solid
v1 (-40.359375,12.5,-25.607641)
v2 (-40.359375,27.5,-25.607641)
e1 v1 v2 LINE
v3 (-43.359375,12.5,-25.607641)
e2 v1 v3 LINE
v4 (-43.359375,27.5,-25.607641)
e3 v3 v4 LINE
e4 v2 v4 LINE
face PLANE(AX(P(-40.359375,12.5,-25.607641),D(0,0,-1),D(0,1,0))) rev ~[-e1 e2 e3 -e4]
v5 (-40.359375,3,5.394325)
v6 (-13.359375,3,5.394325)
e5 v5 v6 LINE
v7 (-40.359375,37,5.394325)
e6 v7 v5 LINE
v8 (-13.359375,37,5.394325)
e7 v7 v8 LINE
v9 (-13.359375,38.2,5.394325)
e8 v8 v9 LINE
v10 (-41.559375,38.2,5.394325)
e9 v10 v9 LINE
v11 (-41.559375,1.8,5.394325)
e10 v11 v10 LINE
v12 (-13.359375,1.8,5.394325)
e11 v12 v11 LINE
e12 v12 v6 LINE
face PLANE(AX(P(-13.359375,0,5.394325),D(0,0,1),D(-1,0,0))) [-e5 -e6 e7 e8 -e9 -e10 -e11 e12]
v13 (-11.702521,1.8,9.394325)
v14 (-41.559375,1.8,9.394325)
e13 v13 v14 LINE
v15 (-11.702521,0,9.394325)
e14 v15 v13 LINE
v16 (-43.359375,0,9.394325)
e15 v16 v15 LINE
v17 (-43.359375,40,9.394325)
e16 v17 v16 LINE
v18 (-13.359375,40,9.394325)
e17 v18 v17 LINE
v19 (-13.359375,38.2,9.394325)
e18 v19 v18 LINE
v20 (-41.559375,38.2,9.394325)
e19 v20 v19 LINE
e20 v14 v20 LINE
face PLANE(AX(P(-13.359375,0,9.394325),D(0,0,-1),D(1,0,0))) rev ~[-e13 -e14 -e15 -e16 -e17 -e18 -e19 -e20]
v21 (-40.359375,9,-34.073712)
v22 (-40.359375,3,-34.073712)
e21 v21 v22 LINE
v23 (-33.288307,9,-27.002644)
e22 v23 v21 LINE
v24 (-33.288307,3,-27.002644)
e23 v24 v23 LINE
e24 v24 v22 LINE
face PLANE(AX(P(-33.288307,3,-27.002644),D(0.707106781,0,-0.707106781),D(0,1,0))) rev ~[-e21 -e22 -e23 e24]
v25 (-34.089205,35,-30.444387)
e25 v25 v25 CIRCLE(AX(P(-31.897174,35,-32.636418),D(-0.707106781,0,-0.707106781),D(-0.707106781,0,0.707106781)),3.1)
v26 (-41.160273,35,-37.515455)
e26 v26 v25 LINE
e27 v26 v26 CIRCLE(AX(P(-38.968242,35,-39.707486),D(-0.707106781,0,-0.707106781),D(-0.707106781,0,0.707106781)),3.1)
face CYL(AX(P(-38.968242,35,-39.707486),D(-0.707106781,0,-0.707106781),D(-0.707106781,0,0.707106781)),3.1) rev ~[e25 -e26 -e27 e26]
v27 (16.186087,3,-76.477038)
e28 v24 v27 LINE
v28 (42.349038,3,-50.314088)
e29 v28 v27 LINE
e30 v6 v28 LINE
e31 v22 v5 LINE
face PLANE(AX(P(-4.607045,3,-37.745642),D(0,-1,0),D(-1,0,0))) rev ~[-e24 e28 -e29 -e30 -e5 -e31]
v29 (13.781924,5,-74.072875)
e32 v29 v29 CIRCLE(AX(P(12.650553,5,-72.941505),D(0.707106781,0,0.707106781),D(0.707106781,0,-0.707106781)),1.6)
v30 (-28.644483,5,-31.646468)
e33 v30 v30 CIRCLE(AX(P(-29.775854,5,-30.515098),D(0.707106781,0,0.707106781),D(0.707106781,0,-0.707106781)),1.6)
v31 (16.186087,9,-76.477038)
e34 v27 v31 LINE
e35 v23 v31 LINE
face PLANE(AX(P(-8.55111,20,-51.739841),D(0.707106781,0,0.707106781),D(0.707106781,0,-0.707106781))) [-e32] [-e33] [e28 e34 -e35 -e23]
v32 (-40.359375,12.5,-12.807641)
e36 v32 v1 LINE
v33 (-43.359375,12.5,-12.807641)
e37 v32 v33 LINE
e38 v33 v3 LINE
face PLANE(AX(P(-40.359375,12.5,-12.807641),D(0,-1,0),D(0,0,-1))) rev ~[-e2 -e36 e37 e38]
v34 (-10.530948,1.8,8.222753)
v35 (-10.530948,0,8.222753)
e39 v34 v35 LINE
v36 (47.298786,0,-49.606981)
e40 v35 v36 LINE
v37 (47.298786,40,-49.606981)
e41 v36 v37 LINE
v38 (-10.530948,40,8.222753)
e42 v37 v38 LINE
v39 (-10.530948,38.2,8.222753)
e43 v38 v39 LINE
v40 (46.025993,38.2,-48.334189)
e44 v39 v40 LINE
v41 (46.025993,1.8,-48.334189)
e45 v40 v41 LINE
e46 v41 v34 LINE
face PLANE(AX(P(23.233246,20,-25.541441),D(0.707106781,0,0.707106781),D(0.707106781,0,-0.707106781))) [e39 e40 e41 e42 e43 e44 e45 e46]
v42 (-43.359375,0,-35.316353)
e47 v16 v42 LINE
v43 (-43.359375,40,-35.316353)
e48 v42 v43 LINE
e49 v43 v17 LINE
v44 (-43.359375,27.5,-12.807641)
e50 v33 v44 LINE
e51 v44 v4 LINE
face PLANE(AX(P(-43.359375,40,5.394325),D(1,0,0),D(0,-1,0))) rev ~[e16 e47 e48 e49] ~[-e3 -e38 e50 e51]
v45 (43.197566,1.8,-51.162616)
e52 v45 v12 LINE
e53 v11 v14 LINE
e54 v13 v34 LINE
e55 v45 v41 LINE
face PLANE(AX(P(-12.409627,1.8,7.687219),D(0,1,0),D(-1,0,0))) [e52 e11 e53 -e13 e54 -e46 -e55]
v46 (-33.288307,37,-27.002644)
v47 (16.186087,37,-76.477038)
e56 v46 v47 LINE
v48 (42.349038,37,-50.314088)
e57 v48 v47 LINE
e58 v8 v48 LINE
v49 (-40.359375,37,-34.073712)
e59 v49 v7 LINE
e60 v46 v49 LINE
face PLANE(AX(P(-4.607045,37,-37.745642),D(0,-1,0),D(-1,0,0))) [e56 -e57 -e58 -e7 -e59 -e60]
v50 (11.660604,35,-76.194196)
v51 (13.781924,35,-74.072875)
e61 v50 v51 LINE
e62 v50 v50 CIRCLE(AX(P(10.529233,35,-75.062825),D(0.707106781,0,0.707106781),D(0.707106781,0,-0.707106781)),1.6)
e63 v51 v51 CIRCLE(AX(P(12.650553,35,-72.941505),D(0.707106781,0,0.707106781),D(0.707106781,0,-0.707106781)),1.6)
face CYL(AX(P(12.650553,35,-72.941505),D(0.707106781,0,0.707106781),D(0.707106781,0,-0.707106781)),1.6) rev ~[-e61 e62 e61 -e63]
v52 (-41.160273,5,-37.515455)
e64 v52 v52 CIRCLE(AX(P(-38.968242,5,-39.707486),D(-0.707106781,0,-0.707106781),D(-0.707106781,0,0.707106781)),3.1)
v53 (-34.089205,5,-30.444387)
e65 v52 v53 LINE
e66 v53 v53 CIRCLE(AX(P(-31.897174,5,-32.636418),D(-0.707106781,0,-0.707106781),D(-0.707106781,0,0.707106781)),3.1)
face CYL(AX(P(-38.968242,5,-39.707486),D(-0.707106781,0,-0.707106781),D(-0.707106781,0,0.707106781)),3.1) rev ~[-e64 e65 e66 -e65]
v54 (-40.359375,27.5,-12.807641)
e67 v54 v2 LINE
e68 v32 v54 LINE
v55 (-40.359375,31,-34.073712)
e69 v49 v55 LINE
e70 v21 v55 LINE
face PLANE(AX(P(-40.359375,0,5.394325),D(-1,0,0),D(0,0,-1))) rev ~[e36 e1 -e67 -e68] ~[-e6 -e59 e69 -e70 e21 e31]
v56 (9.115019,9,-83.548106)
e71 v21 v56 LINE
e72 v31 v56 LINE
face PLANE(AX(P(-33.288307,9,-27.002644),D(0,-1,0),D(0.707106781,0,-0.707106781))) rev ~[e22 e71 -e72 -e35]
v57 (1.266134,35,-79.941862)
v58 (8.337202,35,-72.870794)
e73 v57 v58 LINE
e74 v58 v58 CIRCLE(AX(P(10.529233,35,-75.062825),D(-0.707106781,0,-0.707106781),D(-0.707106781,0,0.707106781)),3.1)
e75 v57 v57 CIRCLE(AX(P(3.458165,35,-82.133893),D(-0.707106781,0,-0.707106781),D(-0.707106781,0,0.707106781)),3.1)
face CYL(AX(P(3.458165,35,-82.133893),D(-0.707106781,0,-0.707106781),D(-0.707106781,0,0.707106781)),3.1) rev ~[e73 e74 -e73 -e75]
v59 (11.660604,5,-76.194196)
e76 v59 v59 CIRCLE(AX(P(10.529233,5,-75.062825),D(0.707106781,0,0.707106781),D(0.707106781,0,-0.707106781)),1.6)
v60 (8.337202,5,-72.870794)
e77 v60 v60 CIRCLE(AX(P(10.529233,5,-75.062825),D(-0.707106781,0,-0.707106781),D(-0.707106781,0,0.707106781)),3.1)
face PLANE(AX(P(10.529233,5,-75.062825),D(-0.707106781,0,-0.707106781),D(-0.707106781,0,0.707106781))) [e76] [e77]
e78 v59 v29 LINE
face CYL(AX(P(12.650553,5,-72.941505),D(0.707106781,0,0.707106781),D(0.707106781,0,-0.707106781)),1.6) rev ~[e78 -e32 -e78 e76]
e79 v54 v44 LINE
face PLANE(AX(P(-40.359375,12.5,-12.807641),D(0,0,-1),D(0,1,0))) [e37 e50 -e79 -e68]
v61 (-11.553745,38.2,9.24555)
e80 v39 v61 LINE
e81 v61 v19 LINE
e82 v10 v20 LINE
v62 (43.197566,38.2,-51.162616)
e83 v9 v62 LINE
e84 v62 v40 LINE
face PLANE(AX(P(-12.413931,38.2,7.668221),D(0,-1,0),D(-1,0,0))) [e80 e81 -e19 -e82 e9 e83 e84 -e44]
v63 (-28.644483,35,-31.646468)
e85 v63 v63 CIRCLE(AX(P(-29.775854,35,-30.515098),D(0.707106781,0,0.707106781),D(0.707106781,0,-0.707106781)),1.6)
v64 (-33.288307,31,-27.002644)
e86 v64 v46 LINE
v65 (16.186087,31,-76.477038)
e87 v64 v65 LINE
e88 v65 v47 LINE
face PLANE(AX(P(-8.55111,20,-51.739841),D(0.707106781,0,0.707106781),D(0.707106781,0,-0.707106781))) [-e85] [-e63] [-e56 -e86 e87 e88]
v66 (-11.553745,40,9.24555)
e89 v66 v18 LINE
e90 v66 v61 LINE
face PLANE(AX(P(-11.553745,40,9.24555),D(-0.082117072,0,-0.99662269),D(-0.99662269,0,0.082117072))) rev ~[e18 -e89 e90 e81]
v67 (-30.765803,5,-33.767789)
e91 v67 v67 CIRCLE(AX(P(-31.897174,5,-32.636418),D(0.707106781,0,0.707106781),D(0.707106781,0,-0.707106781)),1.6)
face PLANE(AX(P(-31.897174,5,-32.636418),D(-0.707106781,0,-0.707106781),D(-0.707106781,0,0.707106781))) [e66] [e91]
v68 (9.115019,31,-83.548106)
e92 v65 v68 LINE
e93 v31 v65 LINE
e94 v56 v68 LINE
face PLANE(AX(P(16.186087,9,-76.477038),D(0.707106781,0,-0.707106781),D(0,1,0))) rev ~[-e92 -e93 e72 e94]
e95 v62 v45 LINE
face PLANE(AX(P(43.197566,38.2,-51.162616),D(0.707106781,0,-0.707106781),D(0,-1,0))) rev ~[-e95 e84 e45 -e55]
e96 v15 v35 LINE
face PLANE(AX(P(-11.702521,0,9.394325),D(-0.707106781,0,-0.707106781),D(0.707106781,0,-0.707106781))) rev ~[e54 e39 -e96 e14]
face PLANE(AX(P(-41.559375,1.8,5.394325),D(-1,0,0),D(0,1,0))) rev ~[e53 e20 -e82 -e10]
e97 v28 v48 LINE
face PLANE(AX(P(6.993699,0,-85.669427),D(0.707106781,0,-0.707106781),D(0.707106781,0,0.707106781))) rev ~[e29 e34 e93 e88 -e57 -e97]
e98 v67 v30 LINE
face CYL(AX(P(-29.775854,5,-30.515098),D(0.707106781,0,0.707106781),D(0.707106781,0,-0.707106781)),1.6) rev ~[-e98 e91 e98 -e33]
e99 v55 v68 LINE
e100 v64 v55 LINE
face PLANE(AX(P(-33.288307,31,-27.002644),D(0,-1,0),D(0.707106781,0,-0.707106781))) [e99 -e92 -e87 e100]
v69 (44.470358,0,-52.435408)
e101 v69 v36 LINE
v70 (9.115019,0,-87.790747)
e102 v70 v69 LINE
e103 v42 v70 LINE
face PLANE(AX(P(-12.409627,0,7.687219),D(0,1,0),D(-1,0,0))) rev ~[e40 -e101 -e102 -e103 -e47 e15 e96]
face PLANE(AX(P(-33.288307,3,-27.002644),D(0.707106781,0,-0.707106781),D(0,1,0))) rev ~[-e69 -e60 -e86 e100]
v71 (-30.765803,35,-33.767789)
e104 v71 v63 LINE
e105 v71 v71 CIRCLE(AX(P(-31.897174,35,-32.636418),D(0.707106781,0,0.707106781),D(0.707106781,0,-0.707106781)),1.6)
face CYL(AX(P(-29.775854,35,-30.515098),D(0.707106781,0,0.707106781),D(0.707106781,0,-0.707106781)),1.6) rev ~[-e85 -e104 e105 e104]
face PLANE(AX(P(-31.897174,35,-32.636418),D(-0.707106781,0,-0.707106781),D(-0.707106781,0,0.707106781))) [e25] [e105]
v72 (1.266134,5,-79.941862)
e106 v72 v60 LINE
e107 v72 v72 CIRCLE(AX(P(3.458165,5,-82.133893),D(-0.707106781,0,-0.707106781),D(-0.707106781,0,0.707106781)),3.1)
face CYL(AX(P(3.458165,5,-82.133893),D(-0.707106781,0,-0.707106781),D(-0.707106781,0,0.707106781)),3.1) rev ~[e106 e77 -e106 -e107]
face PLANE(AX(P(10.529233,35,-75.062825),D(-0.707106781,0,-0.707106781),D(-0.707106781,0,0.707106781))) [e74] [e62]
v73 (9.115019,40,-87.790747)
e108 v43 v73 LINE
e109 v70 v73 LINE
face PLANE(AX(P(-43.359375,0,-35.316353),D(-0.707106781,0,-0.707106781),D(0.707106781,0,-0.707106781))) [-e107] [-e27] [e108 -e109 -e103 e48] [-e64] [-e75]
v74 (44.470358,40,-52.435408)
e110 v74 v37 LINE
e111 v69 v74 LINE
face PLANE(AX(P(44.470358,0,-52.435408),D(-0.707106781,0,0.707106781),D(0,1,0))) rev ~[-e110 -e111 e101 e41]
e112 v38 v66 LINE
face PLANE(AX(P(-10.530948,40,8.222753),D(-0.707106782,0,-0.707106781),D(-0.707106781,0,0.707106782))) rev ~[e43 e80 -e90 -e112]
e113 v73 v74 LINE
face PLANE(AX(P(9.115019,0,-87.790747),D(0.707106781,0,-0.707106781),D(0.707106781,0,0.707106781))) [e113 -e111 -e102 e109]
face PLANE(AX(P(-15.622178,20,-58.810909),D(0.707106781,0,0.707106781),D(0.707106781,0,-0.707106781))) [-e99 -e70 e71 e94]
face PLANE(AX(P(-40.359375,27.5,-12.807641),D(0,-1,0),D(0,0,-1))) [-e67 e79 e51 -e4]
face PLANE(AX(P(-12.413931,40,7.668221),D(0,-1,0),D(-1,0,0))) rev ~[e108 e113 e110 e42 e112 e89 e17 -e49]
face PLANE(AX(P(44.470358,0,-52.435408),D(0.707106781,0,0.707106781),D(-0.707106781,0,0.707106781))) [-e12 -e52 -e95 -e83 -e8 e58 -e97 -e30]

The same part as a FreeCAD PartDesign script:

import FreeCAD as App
import Part
import Sketcher
from FreeCAD import Vector
Q = App.Units.Quantity


def faces_at(feature, points):
    """Names of the faces that lie closest to the given points."""
    faces = feature.Shape.Faces
    near = lambda p: min(range(len(faces)), key=lambda i: faces[i].distToShape(Part.Vertex(*p))[0])
    return sorted({f"Face{near(p) + 1}" for p in points})


def add_polygon(sketch, points):
    """Adds a closed chain of lines whose ends are joined by coincident constraints."""
    first, n = sketch.GeometryCount, len(points)
    for a, b in zip(points, points[1:] + points[:1]):
        sketch.addGeometry(Part.LineSegment(App.Vector(*a, 0), App.Vector(*b, 0)), False)
    for i in range(n):
        sketch.addConstraint(Sketcher.Constraint("Coincident", first + i, 2, first + (i + 1) % n, 1))

doc = App.newDocument("Part")
body = doc.addObject("PartDesign::Body", "Body")

sketch1 = body.newObject("Sketcher::SketchObject", "Sketch")
sketch1.AttachmentSupport = (doc.getObject("XZ_Plane"), [""])
sketch1.MapMode = "FlatFace"
add_polygon(sketch1, [(-43, -35), (-43, 5), (-13, 5), (44, -52), (9, -88)])
sketch1.addConstraint([
    Sketcher.Constraint("Vertical", 0),
    Sketcher.Constraint("Horizontal", 1),
    Sketcher.Constraint("Perpendicular", 2, 3),
    Sketcher.Constraint("Perpendicular", 3, 4),
    Sketcher.Constraint("DistanceX", 1, 1, 1, 2, Q("30 mm")),
    Sketcher.Constraint("Angle", 2, Q("-45 deg")),
    Sketcher.Constraint("Distance", 3, Q("50 mm")),
    Sketcher.Constraint("Distance", 4, Q("74.21 mm")),
    Sketcher.Constraint("DistanceX", -1, 1, 2, 2, Q("44.470358 mm")),
    Sketcher.Constraint("DistanceY", -1, 1, 0, 2, Q("5.394325 mm")),
])
pad1 = body.newObject("PartDesign::Pad", "Pad")
pad1.Profile = sketch1
pad1.Length = 40
pad1.Reversed = True
doc.recompute()

thickness = body.newObject("PartDesign::Thickness", "Thickness")
thickness.Base = (pad1, faces_at(pad1, [(15.555, 20, -23.521), (-28.359, 20, 5.394)]))
thickness.Value = 3
thickness.Reversed = True
thickness.Join = "Intersection"

sketch2 = body.newObject("Sketcher::SketchObject", "Sketch001")
sketch2.Placement = App.Placement(Vector(-3.982525, 0, -3.982525), App.Rotation(Vector(0.707106781, 0, -0.707106781), Vector(0, 0.999999999, 0), Vector(0.707106781, 0, 0.707106781), "ZXY"))
add_polygon(sketch2, [(-13.3, 38.2), (66.7, 38.2), (66.7, 1.8), (-13.3, 1.8), (-13.3, 0), (68.5, 0), (68.5, 40), (-13.3, 40)])
sketch2.addConstraint([
    Sketcher.Constraint("Horizontal", 0),
    Sketcher.Constraint("Vertical", 1),
    Sketcher.Constraint("Horizontal", 2),
    Sketcher.Constraint("Vertical", 3),
    Sketcher.Constraint("Horizontal", 4),
    Sketcher.Constraint("Vertical", 5),
    Sketcher.Constraint("Horizontal", 6),
    Sketcher.Constraint("Vertical", 7),
    Sketcher.Constraint("PointOnObject", 3, 2, -1),
    Sketcher.Constraint("Vertical", 3, 2, 6, 2),
    Sketcher.Constraint("Equal", 3, 7),
    Sketcher.Constraint("DistanceY", 5, 1, 5, 2, Q("40 mm")),
    Sketcher.Constraint("DistanceY", 1, 2, 1, 1, Q("36.4 mm")),
    Sketcher.Constraint("DistanceX", 1, 2, 4, 2, Q("1.8 mm")),
    Sketcher.Constraint("DistanceX", 0, 1, 0, 2, Q("79.983593 mm")),
    Sketcher.Constraint("DistanceX", 2, 2, -1, 1, Q("13.260869 mm")),
])
pad2 = body.newObject("PartDesign::Pad", "Pad001")
pad2.Profile = sketch2
pad2.Length = 4

sketch3 = body.newObject("Sketcher::SketchObject", "Sketch002")
sketch3.AttachmentSupport = (doc.getObject("XY_Plane"), [""])
sketch3.MapMode = "FlatFace"
sketch3.AttachmentOffset = App.Placement(Vector(0, 0, 5.394325), App.Rotation())
add_polygon(sketch3, [(-13.4, 1.8), (-41.6, 1.8), (-41.6, 38.2), (-13.4, 38.2), (-13.4, 40), (-43.4, 40), (-43.4, 0), (-13.4, 0)])
sketch3.addConstraint([
    Sketcher.Constraint("Horizontal", 0),
    Sketcher.Constraint("Vertical", 1),
    Sketcher.Constraint("Horizontal", 2),
    Sketcher.Constraint("Vertical", 3),
    Sketcher.Constraint("Horizontal", 4),
    Sketcher.Constraint("Vertical", 5),
    Sketcher.Constraint("Horizontal", 6),
    Sketcher.Constraint("Vertical", 7),
    Sketcher.Constraint("PointOnObject", 5, 2, -1),
    Sketcher.Constraint("Vertical", 3, 2, 6, 2),
    Sketcher.Constraint("Equal", 3, 7),
    Sketcher.Constraint("DistanceX", 4, 2, 4, 1, Q("30 mm")),
    Sketcher.Constraint("DistanceY", 5, 2, 5, 1, Q("40 mm")),
    Sketcher.Constraint("DistanceX", 0, 2, 0, 1, Q("28.2 mm")),
    Sketcher.Constraint("DistanceY", 1, 1, 1, 2, Q("36.4 mm")),
    Sketcher.Constraint("DistanceX", 0, 2, -1, 1, Q("41.559375 mm")),
])
pad3 = body.newObject("PartDesign::Pad", "Pad002")
pad3.Profile = sketch3
pad3.Length = 4

sketch4 = body.newObject("Sketcher::SketchObject", "Sketch003")
sketch4.AttachmentSupport = (doc.getObject("XZ_Plane"), [""])
sketch4.MapMode = "FlatFace"
add_polygon(sketch4, [(-11.7, 9.4), (-13.4, 9.4), (-13.4, 5.4), (-10.5, 8.2)])
sketch4.addConstraint([
    Sketcher.Constraint("Horizontal", 0),
    Sketcher.Constraint("Vertical", 1),
    Sketcher.Constraint("Perpendicular", 2, 3),
    Sketcher.Constraint("DistanceY", 1, 2, 1, 1, Q("4 mm")),
    Sketcher.Constraint("Angle", 2, Q("45 deg")),
    Sketcher.Constraint("Distance", 2, Q("4 mm")),
    Sketcher.Constraint("DistanceX", 3, 2, -1, 1, Q("11.702521 mm")),
    Sketcher.Constraint("DistanceY", -1, 1, 0, 2, Q("9.394325 mm")),
])
pad4 = body.newObject("PartDesign::Pad", "Pad003")
pad4.Profile = sketch4
pad4.Length = 1.8
pad4.Reversed = True

sketch5 = body.newObject("Sketcher::SketchObject", "Sketch004")
sketch5.AttachmentSupport = (doc.getObject("XZ_Plane"), [""])
sketch5.MapMode = "FlatFace"
sketch5.AttachmentOffset = App.Placement(Vector(0, 0, -40), App.Rotation())
add_polygon(sketch5, [(-10.5, 8.2), (-13.4, 5.4), (-13.4, 9.4), (-11.6, 9.2)])
sketch5.addConstraint([
    Sketcher.Constraint("Vertical", 1),
    Sketcher.Constraint("Perpendicular", 0, 3),
    Sketcher.Constraint("DistanceY", 1, 1, 1, 2, Q("4 mm")),
    Sketcher.Constraint("Angle", 0, Q("-135 deg")),
    Sketcher.Constraint("Distance", 0, Q("4 mm")),
    Sketcher.Constraint("Distance", 2, Q("1.811749 mm")),
    Sketcher.Constraint("DistanceY", -1, 1, 2, 2, Q("9.24555 mm")),
    Sketcher.Constraint("DistanceX", 0, 2, -1, 1, Q("13.359375 mm")),
])
pad5 = body.newObject("PartDesign::Pad", "Pad004")
pad5.Profile = sketch5
pad5.Length = 1.8

sketch6 = body.newObject("Sketcher::SketchObject", "Sketch005")
sketch6.Placement = App.Placement(Vector(-37.216543, 0, -37.216543), App.Rotation(Vector(0.707106781, 0, -0.707106781), Vector(0, 0.999999999, 0), Vector(0.707106781, 0, 0.707106781), "ZXY"))
sketch6.addGeometry([
    Part.Circle(Vector(60.5, 35, 0), Vector(0, 0, 1), 1.6),
    Part.Circle(Vector(60.5, 5, 0), Vector(0, 0, 1), 1.6),
    Part.Circle(Vector(0.5, 35, 0), Vector(0, 0, 1), 1.6),
    Part.Circle(Vector(0.5, 5, 0), Vector(0, 0, 1), 1.6),
], False)
sketch6.addConstraint([
    Sketcher.Constraint("Equal", 0, 1),
    Sketcher.Constraint("Equal", 1, 2),
    Sketcher.Constraint("Equal", 2, 3),
    Sketcher.Constraint("Horizontal", 0, 3, 2, 3),
    Sketcher.Constraint("Horizontal", 1, 3, 3, 3),
    Sketcher.Constraint("Vertical", 0, 3, 1, 3),
    Sketcher.Constraint("Vertical", 2, 3, 3, 3),
    Sketcher.Constraint("Diameter", 0, Q("3.2 mm")),
    Sketcher.Constraint("DistanceY", -1, 1, 0, 3, Q("35 mm")),
    Sketcher.Constraint("DistanceY", -1, 1, 1, 3, Q("5 mm")),
    Sketcher.Constraint("DistanceX", 2, 3, 0, 3, Q("60 mm")),
    Sketcher.Constraint("DistanceX", -1, 1, 0, 3, Q("60.522724 mm")),
])
pocket1 = body.newObject("PartDesign::Pocket", "Pocket")
pocket1.Profile = sketch6
pocket1.Type = "ThroughAll"

sketch7 = body.newObject("Sketcher::SketchObject", "Sketch006")
sketch7.AttachmentSupport = (doc.getObject("YZ_Plane"), [""])
sketch7.MapMode = "FlatFace"
sketch7.AttachmentOffset = App.Placement(Vector(0, 0, -40.359375), App.Rotation())
add_polygon(sketch7, [(28, -13), (12, -13), (12, -26), (28, -26)])
sketch7.addConstraint([
    Sketcher.Constraint("Horizontal", 0),
    Sketcher.Constraint("Vertical", 1),
    Sketcher.Constraint("Horizontal", 2),
    Sketcher.Constraint("Vertical", 3),
    Sketcher.Constraint("DistanceX", 0, 2, 0, 1, Q("15 mm")),
    Sketcher.Constraint("DistanceY", 1, 2, 1, 1, Q("12.8 mm")),
    Sketcher.Constraint("DistanceX", -1, 1, 0, 2, Q("12.5 mm")),
    Sketcher.Constraint("DistanceY", 0, 2, -1, 1, Q("12.807641 mm")),
])
pocket2 = body.newObject("PartDesign::Pocket", "Pocket001")
pocket2.Profile = sketch7
pocket2.Length = 3

sketch8 = body.newObject("Sketcher::SketchObject", "Sketch007")
sketch8.Placement = App.Placement(Vector(-30.145476, 0, -30.145476), App.Rotation(Vector(0.707106781, 0, -0.707106781), Vector(0, 0.999999999, 0), Vector(0.707106781, 0, 0.707106781), "ZXY"))
add_polygon(sketch8, [(-4.4, 37), (-4.4, 3), (65.5, 3), (65.5, 37)])
sketch8.addGeometry(Part.Circle(Vector(0.5, 5, 0), Vector(0, 0, 1), 1.6), False)
sketch8.addGeometry(Part.Circle(Vector(60.5, 5, 0), Vector(0, 0, 1), 1.6), False)
sketch8.addGeometry(Part.Circle(Vector(0.5, 35, 0), Vector(0, 0, 1), 1.6), False)
sketch8.addGeometry(Part.Circle(Vector(60.5, 35, 0), Vector(0, 0, 1), 1.6), False)
sketch8.addConstraint([
    Sketcher.Constraint("Vertical", 0),
    Sketcher.Constraint("Horizontal", 1),
    Sketcher.Constraint("Vertical", 2),
    Sketcher.Constraint("Horizontal", 3),
    Sketcher.Constraint("Equal", 4, 5),
    Sketcher.Constraint("Equal", 5, 6),
    Sketcher.Constraint("Equal", 6, 7),
    Sketcher.Constraint("Horizontal", 4, 3, 5, 3),
    Sketcher.Constraint("Horizontal", 6, 3, 7, 3),
    Sketcher.Constraint("Vertical", 4, 3, 6, 3),
    Sketcher.Constraint("Vertical", 5, 3, 7, 3),
    Sketcher.Constraint("Diameter", 4, Q("3.2 mm")),
    Sketcher.Constraint("DistanceY", 0, 2, 0, 1, Q("34 mm")),
    Sketcher.Constraint("DistanceY", -1, 1, 4, 3, Q("5 mm")),
    Sketcher.Constraint("DistanceY", -1, 1, 6, 3, Q("35 mm")),
    Sketcher.Constraint("DistanceY", -1, 1, 0, 2, Q("3 mm")),
    Sketcher.Constraint("DistanceX", 4, 3, 5, 3, Q("60 mm")),
    Sketcher.Constraint("DistanceX", 5, 3, 1, 2, Q("5 mm")),
    Sketcher.Constraint("DistanceX", 1, 1, 1, 2, Q("69.967359 mm")),
    Sketcher.Constraint("DistanceX", -1, 1, 4, 3, Q("0.522724 mm")),
])
pad6 = body.newObject("PartDesign::Pad", "Pad005")
pad6.Profile = sketch8
pad6.Length = 10
pad6.Reversed = True

sketch9 = body.newObject("Sketcher::SketchObject", "Sketch008")
sketch9.Placement = App.Placement(Vector(-39.337864, 0, -39.337864), App.Rotation(Vector(-0.707106781, 0, 0.707106781), Vector(0, 0.999999999, 0), Vector(-0.707106781, 0, -0.707106781), "ZXY"))
sketch9.addGeometry([
    Part.Circle(Vector(-0.5, 35, 0), Vector(0, 0, 1), 3.1),
    Part.Circle(Vector(-0.5, 5, 0), Vector(0, 0, 1), 3.1),
    Part.Circle(Vector(-60.5, 5, 0), Vector(0, 0, 1), 3.1),
    Part.Circle(Vector(-60.5, 35, 0), Vector(0, 0, 1), 3.1),
], False)
sketch9.addConstraint([
    Sketcher.Constraint("Equal", 0, 1),
    Sketcher.Constraint("Equal", 1, 2),
    Sketcher.Constraint("Equal", 2, 3),
    Sketcher.Constraint("Horizontal", 1, 3, 2, 3),
    Sketcher.Constraint("Horizontal", 0, 3, 3, 3),
    Sketcher.Constraint("Vertical", 0, 3, 1, 3),
    Sketcher.Constraint("Vertical", 2, 3, 3, 3),
    Sketcher.Constraint("Diameter", 0, Q("6.2 mm")),
    Sketcher.Constraint("DistanceY", -1, 1, 0, 3, Q("35 mm")),
    Sketcher.Constraint("DistanceY", -1, 1, 1, 3, Q("5 mm")),
    Sketcher.Constraint("DistanceX", 2, 3, 1, 3, Q("60 mm")),
    Sketcher.Constraint("DistanceX", 0, 3, -1, 1, Q("0.522724 mm")),
])
pocket3 = body.newObject("PartDesign::Pocket", "Pocket002")
pocket3.Profile = sketch9
pocket3.Length = 10

sketch10 = body.newObject("Sketcher::SketchObject", "Sketch009")
sketch10.Placement = App.Placement(Vector(-30.145476, 0, -30.145476), App.Rotation(Vector(0.707106781, 0, -0.707106781), Vector(0, 0.999999999, 0), Vector(0.707106781, 0, 0.707106781), "ZXY"))
add_polygon(sketch10, [(-4, 31), (-4, 9), (66, 9), (66, 31)])
sketch10.addConstraint([
    Sketcher.Constraint("Vertical", 0),
    Sketcher.Constraint("Horizontal", 1),
    Sketcher.Constraint("Vertical", 2),
    Sketcher.Constraint("Horizontal", 3),
    Sketcher.Constraint("DistanceY", 0, 2, 0, 1, Q("22 mm")),
    Sketcher.Constraint("DistanceY", -1, 1, 0, 2, Q("9 mm")),
    Sketcher.Constraint("DistanceX", 1, 1, 1, 2, Q("69.967359 mm")),
    Sketcher.Constraint("DistanceX", 0, 2, -1, 1, Q("4.444635 mm")),
])
pocket4 = body.newObject("PartDesign::Pocket", "Pocket003")
pocket4.Profile = sketch10
pocket4.Length = 10

doc.recompute()
